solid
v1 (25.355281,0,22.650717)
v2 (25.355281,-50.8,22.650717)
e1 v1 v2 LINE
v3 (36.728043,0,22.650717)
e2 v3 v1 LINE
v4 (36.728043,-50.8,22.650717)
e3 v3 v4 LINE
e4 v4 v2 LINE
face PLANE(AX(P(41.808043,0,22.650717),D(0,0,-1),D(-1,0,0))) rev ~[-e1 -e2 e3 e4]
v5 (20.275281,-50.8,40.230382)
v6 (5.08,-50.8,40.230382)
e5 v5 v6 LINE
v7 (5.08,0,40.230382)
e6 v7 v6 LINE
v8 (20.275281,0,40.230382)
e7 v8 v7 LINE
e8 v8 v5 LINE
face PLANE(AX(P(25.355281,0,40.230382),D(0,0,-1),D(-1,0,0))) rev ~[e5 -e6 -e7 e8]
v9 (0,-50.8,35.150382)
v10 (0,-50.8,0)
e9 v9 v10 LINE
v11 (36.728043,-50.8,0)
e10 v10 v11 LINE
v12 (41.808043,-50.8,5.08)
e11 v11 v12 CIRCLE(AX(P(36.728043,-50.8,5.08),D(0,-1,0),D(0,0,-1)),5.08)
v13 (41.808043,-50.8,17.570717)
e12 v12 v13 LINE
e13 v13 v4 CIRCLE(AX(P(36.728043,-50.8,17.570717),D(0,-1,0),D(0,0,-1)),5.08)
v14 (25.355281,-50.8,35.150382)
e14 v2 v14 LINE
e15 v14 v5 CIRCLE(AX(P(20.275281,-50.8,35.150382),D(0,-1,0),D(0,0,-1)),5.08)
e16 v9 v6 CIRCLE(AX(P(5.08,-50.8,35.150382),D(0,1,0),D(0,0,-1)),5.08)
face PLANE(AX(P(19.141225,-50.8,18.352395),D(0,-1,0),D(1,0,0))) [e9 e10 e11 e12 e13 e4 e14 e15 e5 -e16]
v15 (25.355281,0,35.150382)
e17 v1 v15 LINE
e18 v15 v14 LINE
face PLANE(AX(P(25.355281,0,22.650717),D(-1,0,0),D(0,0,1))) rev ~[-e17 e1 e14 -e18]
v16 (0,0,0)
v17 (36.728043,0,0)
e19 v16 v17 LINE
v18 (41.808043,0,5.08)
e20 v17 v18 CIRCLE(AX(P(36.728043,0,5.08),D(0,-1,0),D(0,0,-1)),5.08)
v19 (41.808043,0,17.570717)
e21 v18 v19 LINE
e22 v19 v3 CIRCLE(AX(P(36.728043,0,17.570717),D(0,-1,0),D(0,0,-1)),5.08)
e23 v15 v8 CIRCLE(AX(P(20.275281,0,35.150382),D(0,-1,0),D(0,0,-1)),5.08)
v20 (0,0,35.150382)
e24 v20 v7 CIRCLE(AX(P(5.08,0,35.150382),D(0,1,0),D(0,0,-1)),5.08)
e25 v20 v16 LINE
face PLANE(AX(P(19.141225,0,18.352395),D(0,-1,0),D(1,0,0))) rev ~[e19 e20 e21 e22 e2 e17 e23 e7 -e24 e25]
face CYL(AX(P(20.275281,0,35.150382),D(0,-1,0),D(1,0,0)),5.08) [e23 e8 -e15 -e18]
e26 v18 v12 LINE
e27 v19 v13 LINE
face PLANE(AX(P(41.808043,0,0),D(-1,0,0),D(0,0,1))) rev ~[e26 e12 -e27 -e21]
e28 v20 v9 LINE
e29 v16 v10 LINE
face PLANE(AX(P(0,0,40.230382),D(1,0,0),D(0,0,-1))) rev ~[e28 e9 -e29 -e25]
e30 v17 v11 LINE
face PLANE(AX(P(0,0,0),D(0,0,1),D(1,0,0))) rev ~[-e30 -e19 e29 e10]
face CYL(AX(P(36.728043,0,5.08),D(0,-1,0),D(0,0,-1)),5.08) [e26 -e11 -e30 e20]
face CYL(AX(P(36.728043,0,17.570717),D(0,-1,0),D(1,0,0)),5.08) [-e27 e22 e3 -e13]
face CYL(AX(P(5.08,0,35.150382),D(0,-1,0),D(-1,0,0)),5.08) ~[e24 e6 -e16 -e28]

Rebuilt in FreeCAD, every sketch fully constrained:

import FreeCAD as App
import Part
import Sketcher
from FreeCAD import Vector
Q = App.Units.Quantity


def edges_at(feature, points):
    """Names of the edges that pass closest to the given points."""
    edges = feature.Shape.Edges
    near = lambda p: min(range(len(edges)), key=lambda i: edges[i].distToShape(Part.Vertex(*p))[0])
    return sorted({f"Edge{near(p) + 1}" for p in points})


def add_polygon(sketch, points):
    """Adds a closed chain of lines whose ends are joined by coincident constraints."""
    first, n = sketch.GeometryCount, len(points)
    for a, b in zip(points, points[1:] + points[:1]):
        sketch.addGeometry(Part.LineSegment(App.Vector(*a, 0), App.Vector(*b, 0)), False)
    for i in range(n):
        sketch.addConstraint(Sketcher.Constraint("Coincident", first + i, 2, first + (i + 1) % n, 1))

doc = App.newDocument("Part")
body = doc.addObject("PartDesign::Body", "Body")

# Sketch on XZ plane
sketch1 = body.newObject("Sketcher::SketchObject", "Sketch")
sketch1.AttachmentSupport = (doc.getObject("XZ_Plane"), [""])
sketch1.MapMode = "FlatFace"
add_polygon(sketch1, [(0, 40.230382), (0, 0), (41.808043, 0), (41.808043, 22.650717), (25.355281, 22.650717), (25.355281, 40.230382)])  # lines 0-5
sketch1.addConstraint(Sketcher.Constraint("Vertical", 0))
sketch1.addConstraint(Sketcher.Constraint("Horizontal", 1))
sketch1.addConstraint(Sketcher.Constraint("Vertical", 2))
sketch1.addConstraint(Sketcher.Constraint("Horizontal", 3))
sketch1.addConstraint(Sketcher.Constraint("Vertical", 4))
sketch1.addConstraint(Sketcher.Constraint("Horizontal", 5))
sketch1.addConstraint(Sketcher.Constraint("Coincident", 0, 2, -1, 1))
sketch1.addConstraint(Sketcher.Constraint("DistanceX", 3, 2, 3, 1, Q("16.452762 mm")))
sketch1.addConstraint(Sketcher.Constraint("DistanceX", 5, 2, 5, 1, Q("25.355281 mm")))
sketch1.addConstraint(Sketcher.Constraint("DistanceY", 0, 2, 0, 1, Q("40.230382 mm")))
sketch1.addConstraint(Sketcher.Constraint("DistanceY", 2, 1, 2, 2, Q("22.650717 mm")))
pad1 = body.newObject("PartDesign::Pad", "Pad")
pad1.Profile = sketch1
pad1.Length = Q("2 in")
doc.recompute()

fillet = body.newObject("PartDesign::Fillet", "Fillet")
fillet.Base = (pad1, edges_at(pad1, [
    (25.355, -25.4, 40.23),
    (41.808, -25.4, 22.651),
    (41.808, -25.4, 0),
    (0, -25.4, 40.23),
]))
fillet.Radius = Q("0.2 in")

doc.recompute()
